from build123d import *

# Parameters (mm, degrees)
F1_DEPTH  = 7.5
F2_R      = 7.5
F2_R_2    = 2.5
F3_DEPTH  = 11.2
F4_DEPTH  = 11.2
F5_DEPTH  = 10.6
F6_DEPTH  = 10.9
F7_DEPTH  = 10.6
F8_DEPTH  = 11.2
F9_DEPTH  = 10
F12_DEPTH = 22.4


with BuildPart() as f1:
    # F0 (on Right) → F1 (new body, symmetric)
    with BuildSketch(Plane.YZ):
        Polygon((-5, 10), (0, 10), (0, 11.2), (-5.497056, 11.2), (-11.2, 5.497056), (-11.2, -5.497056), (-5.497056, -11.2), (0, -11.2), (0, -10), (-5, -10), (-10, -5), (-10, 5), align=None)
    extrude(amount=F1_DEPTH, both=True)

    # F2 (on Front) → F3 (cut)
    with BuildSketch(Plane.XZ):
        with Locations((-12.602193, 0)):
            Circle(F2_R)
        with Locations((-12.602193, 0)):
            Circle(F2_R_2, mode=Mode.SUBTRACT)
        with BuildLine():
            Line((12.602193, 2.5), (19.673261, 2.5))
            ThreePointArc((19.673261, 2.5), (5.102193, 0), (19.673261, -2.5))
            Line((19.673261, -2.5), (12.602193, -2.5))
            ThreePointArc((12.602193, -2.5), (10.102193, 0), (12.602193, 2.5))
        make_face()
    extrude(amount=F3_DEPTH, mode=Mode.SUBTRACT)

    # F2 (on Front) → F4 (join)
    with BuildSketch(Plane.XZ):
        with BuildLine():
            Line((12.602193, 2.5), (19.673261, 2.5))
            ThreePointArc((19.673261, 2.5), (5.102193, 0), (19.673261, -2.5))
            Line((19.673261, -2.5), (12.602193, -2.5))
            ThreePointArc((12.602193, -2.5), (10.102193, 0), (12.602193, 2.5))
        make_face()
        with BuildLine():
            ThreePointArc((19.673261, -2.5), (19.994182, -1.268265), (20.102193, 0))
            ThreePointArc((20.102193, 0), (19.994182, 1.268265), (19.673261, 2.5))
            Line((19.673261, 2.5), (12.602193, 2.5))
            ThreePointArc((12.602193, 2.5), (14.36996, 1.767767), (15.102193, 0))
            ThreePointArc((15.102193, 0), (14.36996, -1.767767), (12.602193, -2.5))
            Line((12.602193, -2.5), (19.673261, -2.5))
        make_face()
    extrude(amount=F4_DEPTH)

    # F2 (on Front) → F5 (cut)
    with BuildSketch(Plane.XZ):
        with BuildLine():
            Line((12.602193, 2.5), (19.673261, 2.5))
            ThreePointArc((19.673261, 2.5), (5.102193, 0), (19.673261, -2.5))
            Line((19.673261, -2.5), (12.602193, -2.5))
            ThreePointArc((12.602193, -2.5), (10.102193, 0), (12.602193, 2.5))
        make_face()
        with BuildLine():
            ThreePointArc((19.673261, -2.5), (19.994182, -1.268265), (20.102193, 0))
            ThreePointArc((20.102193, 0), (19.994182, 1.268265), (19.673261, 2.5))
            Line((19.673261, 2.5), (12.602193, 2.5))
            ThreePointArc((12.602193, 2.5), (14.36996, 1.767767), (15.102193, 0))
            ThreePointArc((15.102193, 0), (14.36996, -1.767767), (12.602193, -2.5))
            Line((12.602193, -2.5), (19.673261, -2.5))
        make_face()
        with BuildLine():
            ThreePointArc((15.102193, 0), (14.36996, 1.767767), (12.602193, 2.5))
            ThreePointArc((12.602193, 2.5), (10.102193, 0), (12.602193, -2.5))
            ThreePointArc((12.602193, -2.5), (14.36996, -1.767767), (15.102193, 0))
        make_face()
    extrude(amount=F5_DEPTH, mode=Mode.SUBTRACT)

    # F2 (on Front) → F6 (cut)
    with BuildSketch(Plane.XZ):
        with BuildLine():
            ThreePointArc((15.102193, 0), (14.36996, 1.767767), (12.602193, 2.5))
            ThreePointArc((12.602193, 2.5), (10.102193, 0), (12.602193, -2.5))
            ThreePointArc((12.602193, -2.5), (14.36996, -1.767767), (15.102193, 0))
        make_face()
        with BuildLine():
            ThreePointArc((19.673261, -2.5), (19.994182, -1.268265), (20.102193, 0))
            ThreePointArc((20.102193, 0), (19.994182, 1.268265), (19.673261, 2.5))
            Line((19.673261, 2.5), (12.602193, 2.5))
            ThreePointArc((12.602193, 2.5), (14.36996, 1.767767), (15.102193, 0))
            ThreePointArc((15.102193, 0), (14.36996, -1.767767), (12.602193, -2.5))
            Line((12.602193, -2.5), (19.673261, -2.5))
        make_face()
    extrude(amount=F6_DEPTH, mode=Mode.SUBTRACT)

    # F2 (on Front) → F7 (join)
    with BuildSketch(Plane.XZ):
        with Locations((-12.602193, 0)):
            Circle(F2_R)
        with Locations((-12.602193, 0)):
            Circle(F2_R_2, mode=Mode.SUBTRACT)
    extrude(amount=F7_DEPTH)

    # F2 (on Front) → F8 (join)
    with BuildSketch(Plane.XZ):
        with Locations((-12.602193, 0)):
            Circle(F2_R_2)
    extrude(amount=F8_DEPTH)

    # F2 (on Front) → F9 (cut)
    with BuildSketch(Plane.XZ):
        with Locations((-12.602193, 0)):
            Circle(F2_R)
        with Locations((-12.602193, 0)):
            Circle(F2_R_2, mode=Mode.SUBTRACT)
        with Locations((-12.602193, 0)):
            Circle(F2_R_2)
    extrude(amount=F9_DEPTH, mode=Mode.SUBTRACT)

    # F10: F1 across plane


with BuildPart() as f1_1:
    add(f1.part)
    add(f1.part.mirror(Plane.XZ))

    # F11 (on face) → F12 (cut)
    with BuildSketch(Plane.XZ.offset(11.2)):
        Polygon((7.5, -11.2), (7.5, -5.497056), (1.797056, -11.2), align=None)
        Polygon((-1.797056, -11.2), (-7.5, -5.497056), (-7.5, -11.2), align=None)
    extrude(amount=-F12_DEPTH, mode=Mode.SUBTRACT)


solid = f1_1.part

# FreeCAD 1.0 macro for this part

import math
import FreeCAD as App
import Part
import Sketcher
from FreeCAD import Vector

doc = App.newDocument("Part")
body = doc.addObject("PartDesign::Body", "Body")

# Sketch on YZ plane
sketch1 = body.newObject("Sketcher::SketchObject", "Sketch")
sketch1.AttachmentSupport = (doc.getObject("YZ_Plane"), [""])
sketch1.MapMode = "FlatFace"
sketch1.addGeometry([
    Part.LineSegment(Vector(-5, 10, 0), Vector(0, 10, 0)),  # 0
    Part.LineSegment(Vector(0, 10, 0), Vector(0, 11.2, 0)),  # 1
    Part.LineSegment(Vector(0, 11.2, 0), Vector(-5.5, 11.2, 0)),  # 2
    Part.LineSegment(Vector(-5.5, 11.2, 0), Vector(-11.2, 5.5, 0)),  # 3
    Part.LineSegment(Vector(-11.2, 5.5, 0), Vector(-11.2, -5.5, 0)),  # 4
    Part.LineSegment(Vector(-11.2, -5.5, 0), Vector(-5.5, -11.2, 0)),  # 5
    Part.LineSegment(Vector(-5.5, -11.2, 0), Vector(0, -11.2, 0)),  # 6
    Part.LineSegment(Vector(0, -11.2, 0), Vector(0, -10, 0)),  # 7
    Part.LineSegment(Vector(0, -10, 0), Vector(-5, -10, 0)),  # 8
    Part.LineSegment(Vector(-5, -10, 0), Vector(-10, -5, 0)),  # 9
    Part.LineSegment(Vector(-10, -5, 0), Vector(-10, 5, 0)),  # 10
    Part.LineSegment(Vector(-10, 5, 0), Vector(-5, 10, 0)),  # 11
], False)
sketch1.addConstraint([
    Sketcher.Constraint("Coincident", 0, 2, 1, 1),
    Sketcher.Constraint("Coincident", 1, 2, 2, 1),
    Sketcher.Constraint("Coincident", 2, 2, 3, 1),
    Sketcher.Constraint("Coincident", 3, 2, 4, 1),
    Sketcher.Constraint("Coincident", 4, 2, 5, 1),
    Sketcher.Constraint("Coincident", 5, 2, 6, 1),
    Sketcher.Constraint("Coincident", 6, 2, 7, 1),
    Sketcher.Constraint("Coincident", 7, 2, 8, 1),
    Sketcher.Constraint("Coincident", 8, 2, 9, 1),
    Sketcher.Constraint("Coincident", 9, 2, 10, 1),
    Sketcher.Constraint("Coincident", 10, 2, 11, 1),
    Sketcher.Constraint("Coincident", 11, 2, 0, 1),
    Sketcher.Constraint("Horizontal", 0),
    Sketcher.Constraint("Vertical", 1),
    Sketcher.Constraint("Horizontal", 2),
    Sketcher.Constraint("Vertical", 4),
    Sketcher.Constraint("Horizontal", 6),
    Sketcher.Constraint("Vertical", 7),
    Sketcher.Constraint("Horizontal", 8),
    Sketcher.Constraint("Vertical", 10),
    Sketcher.Constraint("Symmetric", 1, 2, 6, 2, -1, 1),
    Sketcher.Constraint("Symmetric", 0, 2, 7, 2, -1),
    Sketcher.Constraint("Perpendicular", 3, 5),
    Sketcher.Constraint("Parallel", 5, 9),
    Sketcher.Constraint("Perpendicular", 9, 11),
    Sketcher.Constraint("Vertical", 2, 2, 5, 2),
    Sketcher.Constraint("Vertical", 8, 2, 11, 2),
    Sketcher.Constraint("Equal", 3, 5),
    Sketcher.Constraint("DistanceX", 0, 1, 0, 2, 5.0),
    Sketcher.Constraint("DistanceY", 10, 1, 10, 2, 10.0),
    Sketcher.Constraint("DistanceY", 1, 1, 1, 2, 1.2),
    Sketcher.Constraint("DistanceY", -1, 1, 0, 2, 10.0),
    Sketcher.Constraint("DistanceX", 3, 2, -1, 1, 11.2),
    Sketcher.Constraint("Distance", 3, 8.065181),
])
pad1 = body.newObject("PartDesign::Pad", "Pad")
pad1.Profile = sketch1
pad1.Length = 15
pad1.Midplane = True

# Sketch on XZ plane
sketch2 = body.newObject("Sketcher::SketchObject", "Sketch001")
sketch2.AttachmentSupport = (doc.getObject("XZ_Plane"), [""])
sketch2.MapMode = "FlatFace"
sketch2.addGeometry([
    Part.Circle(Vector(-12.6, 0, 0), Vector(0, 0, 1), 7.5),  # 0
    Part.Circle(Vector(-12.6, 0, 0), Vector(0, 0, 1), 2.5),  # 1
    Part.LineSegment(Vector(12.6, 2.5, 0), Vector(19.7, 2.5, 0)),  # 2
    Part.ArcOfCircle(Part.Circle(Vector(12.6, 0, 0), Vector(0, 0, 1), 7.5), math.radians(19), math.radians(341)),  # 3
    Part.LineSegment(Vector(19.7, -2.5, 0), Vector(12.6, -2.5, 0)),  # 4
    Part.ArcOfCircle(Part.Circle(Vector(12.6, 0, 0), Vector(0, 0, 1), 2.5), math.radians(90), math.radians(270)),  # 5
], False)
sketch2.addConstraint([
    Sketcher.Constraint("Coincident", 2, 2, 3, 1),
    Sketcher.Constraint("Coincident", 3, 2, 4, 1),
    Sketcher.Constraint("Tangent", 4, 2, 5, 2),
    Sketcher.Constraint("Tangent", 5, 1, 2, 1),
    Sketcher.Constraint("Horizontal", 2),
    Sketcher.Constraint("Horizontal", 4),
    Sketcher.Constraint("Coincident", 1, 3, 0, 3),
    Sketcher.Constraint("Coincident", 5, 3, 3, 3),
    Sketcher.Constraint("Equal", 0, 3),
    Sketcher.Constraint("Equal", 1, 5),
    Sketcher.Constraint("Symmetric", 0, 3, 3, 3, -1, 1),
    Sketcher.Constraint("PointOnObject", 0, 3, -1),
    Sketcher.Constraint("Diameter", 0, 15.0),
    Sketcher.Constraint("Diameter", 1, 5.0),
    Sketcher.Constraint("DistanceX", -1, 1, 2, 2, 19.673261),
])
pocket1 = body.newObject("PartDesign::Pocket", "Pocket")
pocket1.Profile = sketch2
pocket1.Length = 11.2
pocket1.Reversed = True

# Sketch on XZ plane
sketch3 = body.newObject("Sketcher::SketchObject", "Sketch002")
sketch3.AttachmentSupport = (doc.getObject("XZ_Plane"), [""])
sketch3.MapMode = "FlatFace"
sketch3.addGeometry([
    Part.ArcOfCircle(Part.Circle(Vector(12.6, 0, 0), Vector(0, 0, 1), 7.5), math.radians(19), math.radians(341)),  # 0
    Part.ArcOfCircle(Part.Circle(Vector(12.6, 0, 0), Vector(0, 0, 1), 7.5), math.radians(-19.47), math.radians(0)),  # 1
    Part.ArcOfCircle(Part.Circle(Vector(12.6, 0, 0), Vector(0, 0, 1), 7.5), math.radians(0), math.radians(19.47)),  # 2
    Part.ArcOfCircle(Part.Circle(Vector(12.6, 0, 0), Vector(0, 0, 1), 2.5), math.radians(90), math.radians(270)),  # 3
    Part.ArcOfCircle(Part.Circle(Vector(12.6, 0, 0), Vector(0, 0, 1), 2.5), math.radians(0), math.radians(90)),  # 4
    Part.ArcOfCircle(Part.Circle(Vector(12.6, 0, 0), Vector(0, 0, 1), 2.5), math.radians(-90), math.radians(0)),  # 5
], False)
sketch3.addConstraint([
    Sketcher.Constraint("Tangent", 0, 2, 1, 1),
    Sketcher.Constraint("Tangent", 1, 2, 2, 1),
    Sketcher.Constraint("Tangent", 2, 2, 0, 1),
    Sketcher.Constraint("Tangent", 3, 1, 4, 2),
    Sketcher.Constraint("Tangent", 4, 1, 5, 2),
    Sketcher.Constraint("Tangent", 5, 1, 3, 2),
    Sketcher.Constraint("Coincident", 3, 3, 0, 3),
    Sketcher.Constraint("Symmetric", 0, 2, 2, 2, -1),
    Sketcher.Constraint("PointOnObject", 1, 2, -1),
    Sketcher.Constraint("PointOnObject", 4, 1, -1),
    Sketcher.Constraint("Horizontal", 2, 2, 3, 1),
    Sketcher.Constraint("Vertical", 5, 3, 3, 1),
    Sketcher.Constraint("Vertical", 3, 1, 5, 1),
    Sketcher.Constraint("Radius", 0, 7.5),
    Sketcher.Constraint("Radius", 3, 2.5),
    Sketcher.Constraint("DistanceX", -1, 1, 0, 2, 19.673261),
])
pad2 = body.newObject("PartDesign::Pad", "Pad001")
pad2.Profile = sketch3
pad2.Length = 11.2

# Sketch on XZ plane
sketch4 = body.newObject("Sketcher::SketchObject", "Sketch003")
sketch4.AttachmentSupport = (doc.getObject("XZ_Plane"), [""])
sketch4.MapMode = "FlatFace"
sketch4.addGeometry([
    Part.ArcOfCircle(Part.Circle(Vector(12.6, 0, 0), Vector(0, 0, 1), 7.5), math.radians(19), math.radians(341)),
    Part.ArcOfCircle(Part.Circle(Vector(12.6, 0, 0), Vector(0, 0, 1), 7.5), math.radians(-19.47), math.radians(0)),
    Part.ArcOfCircle(Part.Circle(Vector(12.6, 0, 0), Vector(0, 0, 1), 7.5), math.radians(0), math.radians(19.47)),
], False)
sketch4.addConstraint([
    Sketcher.Constraint("Tangent", 0, 2, 1, 1),
    Sketcher.Constraint("Tangent", 1, 2, 2, 1),
    Sketcher.Constraint("Tangent", 2, 2, 0, 1),
    Sketcher.Constraint("Symmetric", 0, 2, 2, 2, -1),
    Sketcher.Constraint("PointOnObject", 1, 2, -1),
    Sketcher.Constraint("Radius", 0, 7.5),
    Sketcher.Constraint("DistanceY", 0, 2, 2, 2, 5.0),
    Sketcher.Constraint("DistanceX", -1, 1, 0, 2, 19.673261),
])
pocket2 = body.newObject("PartDesign::Pocket", "Pocket001")
pocket2.Profile = sketch4
pocket2.Length = 10.6
pocket2.Reversed = True

# Sketch on XZ plane
sketch5 = body.newObject("Sketcher::SketchObject", "Sketch004")
sketch5.AttachmentSupport = (doc.getObject("XZ_Plane"), [""])
sketch5.MapMode = "FlatFace"
sketch5.addGeometry([
    Part.ArcOfCircle(Part.Circle(Vector(12.6, 0, 0), Vector(0, 0, 1), 2.5), math.radians(90), math.radians(270)),  # 0
    Part.LineSegment(Vector(12.6, -2.5, 0), Vector(19.7, -2.5, 0)),  # 1
    Part.ArcOfCircle(Part.Circle(Vector(12.6, 0, 0), Vector(0, 0, 1), 7.5), math.radians(-19.47), math.radians(0)),  # 2
    Part.ArcOfCircle(Part.Circle(Vector(12.6, 0, 0), Vector(0, 0, 1), 7.5), math.radians(0), math.radians(19.47)),  # 3
    Part.LineSegment(Vector(19.7, 2.5, 0), Vector(12.6, 2.5, 0)),  # 4
], False)
sketch5.addConstraint([
    Sketcher.Constraint("Tangent", 0, 2, 1, 1),
    Sketcher.Constraint("Coincident", 1, 2, 2, 1),
    Sketcher.Constraint("Tangent", 2, 2, 3, 1),
    Sketcher.Constraint("Coincident", 3, 2, 4, 1),
    Sketcher.Constraint("Tangent", 4, 2, 0, 1),
    Sketcher.Constraint("Horizontal", 1),
    Sketcher.Constraint("Horizontal", 4),
    Sketcher.Constraint("Equal", 2, 3),
    Sketcher.Constraint("Symmetric", 1, 2, 3, 2, -1),
    Sketcher.Constraint("PointOnObject", 2, 2, -1),
    Sketcher.Constraint("Radius", 0, 2.5),
    Sketcher.Constraint("DistanceX", 0, 3, 2, 2, 7.5),
    Sketcher.Constraint("Radius", 2, 7.500018),
    Sketcher.Constraint("DistanceX", -1, 1, 1, 2, 19.673261),
])
pocket3 = body.newObject("PartDesign::Pocket", "Pocket002")
pocket3.Profile = sketch5
pocket3.Length = 10.9
pocket3.Reversed = True

# Sketch on XZ plane
sketch6 = body.newObject("Sketcher::SketchObject", "Sketch005")
sketch6.AttachmentSupport = (doc.getObject("XZ_Plane"), [""])
sketch6.MapMode = "FlatFace"
sketch6.addGeometry([
    Part.Circle(Vector(-12.6, 0, 0), Vector(0, 0, 1), 7.5),
    Part.Circle(Vector(-12.6, 0, 0), Vector(0, 0, 1), 2.5),
], False)
sketch6.addConstraint([
    Sketcher.Constraint("Coincident", 1, 3, 0, 3),
    Sketcher.Constraint("PointOnObject", 0, 3, -1),
    Sketcher.Constraint("Diameter", 0, 15.0),
    Sketcher.Constraint("Diameter", 1, 5.0),
    Sketcher.Constraint("DistanceX", 0, 3, -1, 1, 12.602193),
])
pad3 = body.newObject("PartDesign::Pad", "Pad002")
pad3.Profile = sketch6
pad3.Length = 10.6

# Sketch on XZ plane
sketch7 = body.newObject("Sketcher::SketchObject", "Sketch006")
sketch7.AttachmentSupport = (doc.getObject("XZ_Plane"), [""])
sketch7.MapMode = "FlatFace"
sketch7.addGeometry(Part.Circle(Vector(-12.6, 0, 0), Vector(0, 0, 1), 2.5), False)
sketch7.addConstraint([
    Sketcher.Constraint("PointOnObject", 0, 3, -1),
    Sketcher.Constraint("Diameter", 0, 5.0),
    Sketcher.Constraint("DistanceX", 0, 3, -1, 1, 12.602193),
])
pad4 = body.newObject("PartDesign::Pad", "Pad003")
pad4.Profile = sketch7
pad4.Length = 11.2

# Sketch on XZ plane
sketch8 = body.newObject("Sketcher::SketchObject", "Sketch007")
sketch8.AttachmentSupport = (doc.getObject("XZ_Plane"), [""])
sketch8.MapMode = "FlatFace"
sketch8.addGeometry(Part.Circle(Vector(-13, 0, 0), Vector(0, 0, 1), 8), False)
sketch8.addConstraint([
    Sketcher.Constraint("PointOnObject", 0, 3, -1),
    Sketcher.Constraint("Diameter", 0, 15.0),
    Sketcher.Constraint("DistanceX", 0, 3, -1, 1, 12.602193),
])
pocket4 = body.newObject("PartDesign::Pocket", "Pocket003")
pocket4.Profile = sketch8
pocket4.Length = 10
pocket4.Reversed = True
body2 = doc.addObject("PartDesign::Body", "Body001")
doc.recompute()

body2.BaseFeature = body
doc.recompute()

mirroring = doc.addObject("Part::Mirroring", "Mirroring")
mirroring.Source = body
mirroring.Base = Vector(0, 0, 0)
mirroring.Normal = Vector(0, -1, 0)
body3 = doc.addObject("PartDesign::Body", "Body002")
body3.BaseFeature = mirroring
boolean = body2.newObject("PartDesign::Boolean", "Boolean")
boolean.Type = "Fuse"
boolean.addObjects([body3])
doc.recompute()

# Sketch on XZ plane
sketch9 = body2.newObject("Sketcher::SketchObject", "Sketch008")
sketch9.AttachmentSupport = (doc.getObject("XZ_Plane001"), [""])
sketch9.MapMode = "FlatFace"
sketch9.AttachmentOffset = App.Placement(Vector(0, 0, 11.2), App.Rotation())
sketch9.addGeometry([
    Part.LineSegment(Vector(8, -11, 0), Vector(8, -5, 0)),  # 0
    Part.LineSegment(Vector(8, -5, 0), Vector(2, -11, 0)),  # 1
    Part.LineSegment(Vector(2, -11, 0), Vector(8, -11, 0)),  # 2
    Part.LineSegment(Vector(-2, -11, 0), Vector(-8, -5, 0)),  # 3
    Part.LineSegment(Vector(-8, -5, 0), Vector(-8, -11, 0)),  # 4
    Part.LineSegment(Vector(-8, -11, 0), Vector(-2, -11, 0)),  # 5
], False)
sketch9.addConstraint([
    Sketcher.Constraint("Coincident", 0, 2, 1, 1),
    Sketcher.Constraint("Coincident", 1, 2, 2, 1),
    Sketcher.Constraint("Coincident", 2, 2, 0, 1),
    Sketcher.Constraint("Coincident", 3, 2, 4, 1),
    Sketcher.Constraint("Coincident", 4, 2, 5, 1),
    Sketcher.Constraint("Coincident", 5, 2, 3, 1),
    Sketcher.Constraint("Vertical", 0),
    Sketcher.Constraint("Horizontal", 2),
    Sketcher.Constraint("Vertical", 4),
    Sketcher.Constraint("Horizontal", 5),
    Sketcher.Constraint("Symmetric", 0, 2, 3, 2, -2),
    Sketcher.Constraint("Symmetric", 1, 2, 5, 2, -2),
    Sketcher.Constraint("Perpendicular", 1, 3),
    Sketcher.Constraint("DistanceX", 3, 2, 0, 2, 15.0),
    Sketcher.Constraint("DistanceY", 1, 2, -1, 1, 11.2),
    Sketcher.Constraint("Distance", 1, 8.065181),
])
pocket5 = body2.newObject("PartDesign::Pocket", "Pocket004")
pocket5.Profile = sketch9
pocket5.Length = 22.4
mirroring.Visibility = False

doc.recompute()
